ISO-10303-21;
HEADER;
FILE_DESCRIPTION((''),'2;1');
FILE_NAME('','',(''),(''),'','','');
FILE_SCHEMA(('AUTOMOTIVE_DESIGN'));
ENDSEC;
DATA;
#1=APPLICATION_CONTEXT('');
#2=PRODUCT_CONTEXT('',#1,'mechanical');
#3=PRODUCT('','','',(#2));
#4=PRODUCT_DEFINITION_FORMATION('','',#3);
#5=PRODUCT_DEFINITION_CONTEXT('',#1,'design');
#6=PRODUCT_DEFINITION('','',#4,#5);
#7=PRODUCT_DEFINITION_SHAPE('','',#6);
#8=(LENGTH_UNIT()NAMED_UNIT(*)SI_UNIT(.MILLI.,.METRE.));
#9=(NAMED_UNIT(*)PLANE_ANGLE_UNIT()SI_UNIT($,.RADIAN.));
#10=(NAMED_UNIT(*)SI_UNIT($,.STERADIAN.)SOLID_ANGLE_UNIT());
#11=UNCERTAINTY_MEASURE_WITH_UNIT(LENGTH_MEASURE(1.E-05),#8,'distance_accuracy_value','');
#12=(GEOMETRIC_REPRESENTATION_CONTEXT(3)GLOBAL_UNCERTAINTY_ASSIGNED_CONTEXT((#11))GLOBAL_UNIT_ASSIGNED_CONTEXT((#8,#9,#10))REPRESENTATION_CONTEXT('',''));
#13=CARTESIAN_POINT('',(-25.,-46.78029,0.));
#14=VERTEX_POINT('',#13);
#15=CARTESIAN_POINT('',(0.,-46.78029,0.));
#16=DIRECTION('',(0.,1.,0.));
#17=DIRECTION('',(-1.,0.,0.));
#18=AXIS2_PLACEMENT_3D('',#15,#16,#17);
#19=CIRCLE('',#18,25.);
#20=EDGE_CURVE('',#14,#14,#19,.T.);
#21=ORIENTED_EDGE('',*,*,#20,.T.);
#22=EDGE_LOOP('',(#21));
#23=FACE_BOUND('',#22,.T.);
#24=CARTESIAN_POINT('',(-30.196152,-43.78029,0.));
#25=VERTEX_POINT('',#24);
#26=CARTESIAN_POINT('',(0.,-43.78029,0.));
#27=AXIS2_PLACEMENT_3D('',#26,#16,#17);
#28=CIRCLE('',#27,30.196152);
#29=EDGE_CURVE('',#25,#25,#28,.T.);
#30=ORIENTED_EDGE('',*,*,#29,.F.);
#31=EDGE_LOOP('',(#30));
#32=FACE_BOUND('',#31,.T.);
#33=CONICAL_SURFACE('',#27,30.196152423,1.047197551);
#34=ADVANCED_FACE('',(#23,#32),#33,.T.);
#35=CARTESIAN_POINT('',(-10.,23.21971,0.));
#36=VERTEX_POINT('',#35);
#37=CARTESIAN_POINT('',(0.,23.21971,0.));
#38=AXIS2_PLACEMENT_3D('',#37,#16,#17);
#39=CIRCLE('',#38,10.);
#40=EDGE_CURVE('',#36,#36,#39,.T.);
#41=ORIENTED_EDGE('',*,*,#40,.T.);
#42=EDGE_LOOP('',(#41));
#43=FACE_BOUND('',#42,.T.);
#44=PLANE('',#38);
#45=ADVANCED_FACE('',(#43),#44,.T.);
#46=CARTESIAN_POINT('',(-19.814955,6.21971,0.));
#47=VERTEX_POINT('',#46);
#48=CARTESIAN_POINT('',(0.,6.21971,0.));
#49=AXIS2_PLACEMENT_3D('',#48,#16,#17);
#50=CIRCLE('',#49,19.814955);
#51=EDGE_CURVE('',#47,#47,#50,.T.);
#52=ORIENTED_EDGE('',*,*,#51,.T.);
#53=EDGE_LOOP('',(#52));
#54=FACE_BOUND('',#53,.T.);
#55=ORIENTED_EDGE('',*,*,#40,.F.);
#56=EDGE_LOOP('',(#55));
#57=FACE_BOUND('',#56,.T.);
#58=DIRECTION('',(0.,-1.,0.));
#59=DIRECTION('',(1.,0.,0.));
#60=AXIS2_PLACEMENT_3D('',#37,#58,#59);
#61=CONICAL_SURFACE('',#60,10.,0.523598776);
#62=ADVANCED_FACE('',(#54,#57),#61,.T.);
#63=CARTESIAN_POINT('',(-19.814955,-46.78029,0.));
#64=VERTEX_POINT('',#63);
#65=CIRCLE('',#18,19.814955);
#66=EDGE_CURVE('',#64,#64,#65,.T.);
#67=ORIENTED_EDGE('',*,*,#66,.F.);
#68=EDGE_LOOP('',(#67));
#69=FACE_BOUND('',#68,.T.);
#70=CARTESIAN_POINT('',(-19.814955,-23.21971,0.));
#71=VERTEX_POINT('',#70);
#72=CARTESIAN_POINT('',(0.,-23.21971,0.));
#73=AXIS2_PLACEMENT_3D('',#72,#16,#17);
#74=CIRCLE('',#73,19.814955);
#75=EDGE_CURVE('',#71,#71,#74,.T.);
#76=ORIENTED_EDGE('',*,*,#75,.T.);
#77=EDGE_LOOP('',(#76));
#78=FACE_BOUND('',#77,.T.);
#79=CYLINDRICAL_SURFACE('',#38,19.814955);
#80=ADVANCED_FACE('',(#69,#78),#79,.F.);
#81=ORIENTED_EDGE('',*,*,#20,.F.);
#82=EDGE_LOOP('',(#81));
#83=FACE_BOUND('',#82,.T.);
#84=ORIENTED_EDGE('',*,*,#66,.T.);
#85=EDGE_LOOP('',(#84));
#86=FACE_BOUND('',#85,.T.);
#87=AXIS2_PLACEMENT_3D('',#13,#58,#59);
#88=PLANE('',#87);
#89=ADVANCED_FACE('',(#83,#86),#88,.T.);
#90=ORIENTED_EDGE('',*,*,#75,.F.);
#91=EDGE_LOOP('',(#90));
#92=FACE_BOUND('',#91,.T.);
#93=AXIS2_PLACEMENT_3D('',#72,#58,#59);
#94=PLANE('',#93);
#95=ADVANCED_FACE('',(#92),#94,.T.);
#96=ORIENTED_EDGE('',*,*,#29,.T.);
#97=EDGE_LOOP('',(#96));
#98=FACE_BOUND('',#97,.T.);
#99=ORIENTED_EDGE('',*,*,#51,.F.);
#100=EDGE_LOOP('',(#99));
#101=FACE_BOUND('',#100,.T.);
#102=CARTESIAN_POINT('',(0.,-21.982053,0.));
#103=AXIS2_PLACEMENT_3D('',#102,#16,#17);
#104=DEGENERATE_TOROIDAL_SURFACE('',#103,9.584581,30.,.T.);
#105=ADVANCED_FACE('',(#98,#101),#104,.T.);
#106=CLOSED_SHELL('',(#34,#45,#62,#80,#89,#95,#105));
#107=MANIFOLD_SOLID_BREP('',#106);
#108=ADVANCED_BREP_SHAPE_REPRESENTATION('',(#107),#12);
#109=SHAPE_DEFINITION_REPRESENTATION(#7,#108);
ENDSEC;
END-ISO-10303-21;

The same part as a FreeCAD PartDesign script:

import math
import FreeCAD as App
import Part
import Sketcher

V = App.Vector
Q = App.Units.Quantity

doc = App.newDocument("Part")
params = doc.addObject("Spreadsheet::Sheet", "Params")
for row, (alias, value) in enumerate([
    ("sketch1_radius", "30 mm"),
    ("sketch1_width", "10 mm"),
    ("sketch1_length", "6 mm"),
    ("revolution_angle", "360 deg"),
], start=1):
    params.set(f"A{row}", alias)
    params.set(f"B{row}", "=" + value)
    params.setAlias(f"B{row}", alias)

body = doc.addObject("PartDesign::Body", "Body")

# Sketch on XY plane
sketch1 = doc.addObject("Sketcher::SketchObject", "Sketch")
body.addObject(sketch1)
sketch1.AttachmentSupport = (doc.XY_Plane, [""])
sketch1.MapMode = "FlatFace"
sketch1.addGeometry([
    Part.LineSegment(V(0, -23, 0), V(0, 23, 0)),  # 0
    Part.LineSegment(V(0, 23, 0), V(-10, 23, 0)),  # 1
    Part.LineSegment(V(-10, 23, 0), V(-20, 6, 0)),  # 2
    Part.ArcOfCircle(Part.Circle(V(-10, -22, 0), V(0, 0, 1), 30), math.radians(110), math.radians(227)),  # 3
    Part.LineSegment(V(-30, -44, 0), V(-25, -47, 0)),  # 4
    Part.LineSegment(V(-25, -47, 0), V(-20, -47, 0)),  # 5
    Part.LineSegment(V(-20, -47, 0), V(-20, -23, 0)),  # 6
    Part.LineSegment(V(-20, -23, 0), V(0, -23, 0)),  # 7
], False)
sketch1.addConstraint([
    Sketcher.Constraint("Coincident", 0, 2, 1, 1),
    Sketcher.Constraint("Coincident", 1, 2, 2, 1),
    Sketcher.Constraint("Coincident", 2, 2, 3, 1),
    Sketcher.Constraint("Coincident", 3, 2, 4, 1),
    Sketcher.Constraint("Coincident", 4, 2, 5, 1),
    Sketcher.Constraint("Coincident", 5, 2, 6, 1),
    Sketcher.Constraint("Coincident", 6, 2, 7, 1),
    Sketcher.Constraint("Coincident", 7, 2, 0, 1),
    Sketcher.Constraint("Vertical", 0),
    Sketcher.Constraint("Horizontal", 1),
    Sketcher.Constraint("Horizontal", 5),
    Sketcher.Constraint("Vertical", 6),
    Sketcher.Constraint("Horizontal", 7),
    Sketcher.Constraint("Symmetric", 0, 2, 7, 2, -1, 1),
    Sketcher.Constraint("Perpendicular", 2, 4),
    Sketcher.Constraint("Vertical", 2, 2, 5, 2),
    Sketcher.Constraint("Radius", 3, Q("30 mm")),
    Sketcher.Constraint("DistanceX", 1, 2, 1, 1, Q("10 mm")),
    Sketcher.Constraint("Angle", 2, Q("-120 deg")),
    Sketcher.Constraint("Distance", 4, Q("6 mm")),
    Sketcher.Constraint("DistanceX", 4, 2, -1, 1, Q("25 mm")),
    Sketcher.Constraint("DistanceY", 2, 2, 1, 2, Q("17 mm")),
    Sketcher.Constraint("DistanceY", 3, 2, 2, 2, Q("50 mm")),
    Sketcher.Constraint("DistanceY", 0, 1, 0, 2, Q("46.43942 mm")),
])
sketch1.setExpression("Constraints[16]", "Params.sketch1_radius")
sketch1.setExpression("Constraints[17]", "Params.sketch1_width")
sketch1.setExpression("Constraints[19]", "Params.sketch1_length")
revolution = doc.addObject("PartDesign::Revolution", "Revolution")
body.addObject(revolution)
revolution.Profile = sketch1
revolution.ReferenceAxis = (sketch1, ["V_Axis"])
revolution.setExpression("Angle", "Params.revolution_angle")

doc.recompute()
